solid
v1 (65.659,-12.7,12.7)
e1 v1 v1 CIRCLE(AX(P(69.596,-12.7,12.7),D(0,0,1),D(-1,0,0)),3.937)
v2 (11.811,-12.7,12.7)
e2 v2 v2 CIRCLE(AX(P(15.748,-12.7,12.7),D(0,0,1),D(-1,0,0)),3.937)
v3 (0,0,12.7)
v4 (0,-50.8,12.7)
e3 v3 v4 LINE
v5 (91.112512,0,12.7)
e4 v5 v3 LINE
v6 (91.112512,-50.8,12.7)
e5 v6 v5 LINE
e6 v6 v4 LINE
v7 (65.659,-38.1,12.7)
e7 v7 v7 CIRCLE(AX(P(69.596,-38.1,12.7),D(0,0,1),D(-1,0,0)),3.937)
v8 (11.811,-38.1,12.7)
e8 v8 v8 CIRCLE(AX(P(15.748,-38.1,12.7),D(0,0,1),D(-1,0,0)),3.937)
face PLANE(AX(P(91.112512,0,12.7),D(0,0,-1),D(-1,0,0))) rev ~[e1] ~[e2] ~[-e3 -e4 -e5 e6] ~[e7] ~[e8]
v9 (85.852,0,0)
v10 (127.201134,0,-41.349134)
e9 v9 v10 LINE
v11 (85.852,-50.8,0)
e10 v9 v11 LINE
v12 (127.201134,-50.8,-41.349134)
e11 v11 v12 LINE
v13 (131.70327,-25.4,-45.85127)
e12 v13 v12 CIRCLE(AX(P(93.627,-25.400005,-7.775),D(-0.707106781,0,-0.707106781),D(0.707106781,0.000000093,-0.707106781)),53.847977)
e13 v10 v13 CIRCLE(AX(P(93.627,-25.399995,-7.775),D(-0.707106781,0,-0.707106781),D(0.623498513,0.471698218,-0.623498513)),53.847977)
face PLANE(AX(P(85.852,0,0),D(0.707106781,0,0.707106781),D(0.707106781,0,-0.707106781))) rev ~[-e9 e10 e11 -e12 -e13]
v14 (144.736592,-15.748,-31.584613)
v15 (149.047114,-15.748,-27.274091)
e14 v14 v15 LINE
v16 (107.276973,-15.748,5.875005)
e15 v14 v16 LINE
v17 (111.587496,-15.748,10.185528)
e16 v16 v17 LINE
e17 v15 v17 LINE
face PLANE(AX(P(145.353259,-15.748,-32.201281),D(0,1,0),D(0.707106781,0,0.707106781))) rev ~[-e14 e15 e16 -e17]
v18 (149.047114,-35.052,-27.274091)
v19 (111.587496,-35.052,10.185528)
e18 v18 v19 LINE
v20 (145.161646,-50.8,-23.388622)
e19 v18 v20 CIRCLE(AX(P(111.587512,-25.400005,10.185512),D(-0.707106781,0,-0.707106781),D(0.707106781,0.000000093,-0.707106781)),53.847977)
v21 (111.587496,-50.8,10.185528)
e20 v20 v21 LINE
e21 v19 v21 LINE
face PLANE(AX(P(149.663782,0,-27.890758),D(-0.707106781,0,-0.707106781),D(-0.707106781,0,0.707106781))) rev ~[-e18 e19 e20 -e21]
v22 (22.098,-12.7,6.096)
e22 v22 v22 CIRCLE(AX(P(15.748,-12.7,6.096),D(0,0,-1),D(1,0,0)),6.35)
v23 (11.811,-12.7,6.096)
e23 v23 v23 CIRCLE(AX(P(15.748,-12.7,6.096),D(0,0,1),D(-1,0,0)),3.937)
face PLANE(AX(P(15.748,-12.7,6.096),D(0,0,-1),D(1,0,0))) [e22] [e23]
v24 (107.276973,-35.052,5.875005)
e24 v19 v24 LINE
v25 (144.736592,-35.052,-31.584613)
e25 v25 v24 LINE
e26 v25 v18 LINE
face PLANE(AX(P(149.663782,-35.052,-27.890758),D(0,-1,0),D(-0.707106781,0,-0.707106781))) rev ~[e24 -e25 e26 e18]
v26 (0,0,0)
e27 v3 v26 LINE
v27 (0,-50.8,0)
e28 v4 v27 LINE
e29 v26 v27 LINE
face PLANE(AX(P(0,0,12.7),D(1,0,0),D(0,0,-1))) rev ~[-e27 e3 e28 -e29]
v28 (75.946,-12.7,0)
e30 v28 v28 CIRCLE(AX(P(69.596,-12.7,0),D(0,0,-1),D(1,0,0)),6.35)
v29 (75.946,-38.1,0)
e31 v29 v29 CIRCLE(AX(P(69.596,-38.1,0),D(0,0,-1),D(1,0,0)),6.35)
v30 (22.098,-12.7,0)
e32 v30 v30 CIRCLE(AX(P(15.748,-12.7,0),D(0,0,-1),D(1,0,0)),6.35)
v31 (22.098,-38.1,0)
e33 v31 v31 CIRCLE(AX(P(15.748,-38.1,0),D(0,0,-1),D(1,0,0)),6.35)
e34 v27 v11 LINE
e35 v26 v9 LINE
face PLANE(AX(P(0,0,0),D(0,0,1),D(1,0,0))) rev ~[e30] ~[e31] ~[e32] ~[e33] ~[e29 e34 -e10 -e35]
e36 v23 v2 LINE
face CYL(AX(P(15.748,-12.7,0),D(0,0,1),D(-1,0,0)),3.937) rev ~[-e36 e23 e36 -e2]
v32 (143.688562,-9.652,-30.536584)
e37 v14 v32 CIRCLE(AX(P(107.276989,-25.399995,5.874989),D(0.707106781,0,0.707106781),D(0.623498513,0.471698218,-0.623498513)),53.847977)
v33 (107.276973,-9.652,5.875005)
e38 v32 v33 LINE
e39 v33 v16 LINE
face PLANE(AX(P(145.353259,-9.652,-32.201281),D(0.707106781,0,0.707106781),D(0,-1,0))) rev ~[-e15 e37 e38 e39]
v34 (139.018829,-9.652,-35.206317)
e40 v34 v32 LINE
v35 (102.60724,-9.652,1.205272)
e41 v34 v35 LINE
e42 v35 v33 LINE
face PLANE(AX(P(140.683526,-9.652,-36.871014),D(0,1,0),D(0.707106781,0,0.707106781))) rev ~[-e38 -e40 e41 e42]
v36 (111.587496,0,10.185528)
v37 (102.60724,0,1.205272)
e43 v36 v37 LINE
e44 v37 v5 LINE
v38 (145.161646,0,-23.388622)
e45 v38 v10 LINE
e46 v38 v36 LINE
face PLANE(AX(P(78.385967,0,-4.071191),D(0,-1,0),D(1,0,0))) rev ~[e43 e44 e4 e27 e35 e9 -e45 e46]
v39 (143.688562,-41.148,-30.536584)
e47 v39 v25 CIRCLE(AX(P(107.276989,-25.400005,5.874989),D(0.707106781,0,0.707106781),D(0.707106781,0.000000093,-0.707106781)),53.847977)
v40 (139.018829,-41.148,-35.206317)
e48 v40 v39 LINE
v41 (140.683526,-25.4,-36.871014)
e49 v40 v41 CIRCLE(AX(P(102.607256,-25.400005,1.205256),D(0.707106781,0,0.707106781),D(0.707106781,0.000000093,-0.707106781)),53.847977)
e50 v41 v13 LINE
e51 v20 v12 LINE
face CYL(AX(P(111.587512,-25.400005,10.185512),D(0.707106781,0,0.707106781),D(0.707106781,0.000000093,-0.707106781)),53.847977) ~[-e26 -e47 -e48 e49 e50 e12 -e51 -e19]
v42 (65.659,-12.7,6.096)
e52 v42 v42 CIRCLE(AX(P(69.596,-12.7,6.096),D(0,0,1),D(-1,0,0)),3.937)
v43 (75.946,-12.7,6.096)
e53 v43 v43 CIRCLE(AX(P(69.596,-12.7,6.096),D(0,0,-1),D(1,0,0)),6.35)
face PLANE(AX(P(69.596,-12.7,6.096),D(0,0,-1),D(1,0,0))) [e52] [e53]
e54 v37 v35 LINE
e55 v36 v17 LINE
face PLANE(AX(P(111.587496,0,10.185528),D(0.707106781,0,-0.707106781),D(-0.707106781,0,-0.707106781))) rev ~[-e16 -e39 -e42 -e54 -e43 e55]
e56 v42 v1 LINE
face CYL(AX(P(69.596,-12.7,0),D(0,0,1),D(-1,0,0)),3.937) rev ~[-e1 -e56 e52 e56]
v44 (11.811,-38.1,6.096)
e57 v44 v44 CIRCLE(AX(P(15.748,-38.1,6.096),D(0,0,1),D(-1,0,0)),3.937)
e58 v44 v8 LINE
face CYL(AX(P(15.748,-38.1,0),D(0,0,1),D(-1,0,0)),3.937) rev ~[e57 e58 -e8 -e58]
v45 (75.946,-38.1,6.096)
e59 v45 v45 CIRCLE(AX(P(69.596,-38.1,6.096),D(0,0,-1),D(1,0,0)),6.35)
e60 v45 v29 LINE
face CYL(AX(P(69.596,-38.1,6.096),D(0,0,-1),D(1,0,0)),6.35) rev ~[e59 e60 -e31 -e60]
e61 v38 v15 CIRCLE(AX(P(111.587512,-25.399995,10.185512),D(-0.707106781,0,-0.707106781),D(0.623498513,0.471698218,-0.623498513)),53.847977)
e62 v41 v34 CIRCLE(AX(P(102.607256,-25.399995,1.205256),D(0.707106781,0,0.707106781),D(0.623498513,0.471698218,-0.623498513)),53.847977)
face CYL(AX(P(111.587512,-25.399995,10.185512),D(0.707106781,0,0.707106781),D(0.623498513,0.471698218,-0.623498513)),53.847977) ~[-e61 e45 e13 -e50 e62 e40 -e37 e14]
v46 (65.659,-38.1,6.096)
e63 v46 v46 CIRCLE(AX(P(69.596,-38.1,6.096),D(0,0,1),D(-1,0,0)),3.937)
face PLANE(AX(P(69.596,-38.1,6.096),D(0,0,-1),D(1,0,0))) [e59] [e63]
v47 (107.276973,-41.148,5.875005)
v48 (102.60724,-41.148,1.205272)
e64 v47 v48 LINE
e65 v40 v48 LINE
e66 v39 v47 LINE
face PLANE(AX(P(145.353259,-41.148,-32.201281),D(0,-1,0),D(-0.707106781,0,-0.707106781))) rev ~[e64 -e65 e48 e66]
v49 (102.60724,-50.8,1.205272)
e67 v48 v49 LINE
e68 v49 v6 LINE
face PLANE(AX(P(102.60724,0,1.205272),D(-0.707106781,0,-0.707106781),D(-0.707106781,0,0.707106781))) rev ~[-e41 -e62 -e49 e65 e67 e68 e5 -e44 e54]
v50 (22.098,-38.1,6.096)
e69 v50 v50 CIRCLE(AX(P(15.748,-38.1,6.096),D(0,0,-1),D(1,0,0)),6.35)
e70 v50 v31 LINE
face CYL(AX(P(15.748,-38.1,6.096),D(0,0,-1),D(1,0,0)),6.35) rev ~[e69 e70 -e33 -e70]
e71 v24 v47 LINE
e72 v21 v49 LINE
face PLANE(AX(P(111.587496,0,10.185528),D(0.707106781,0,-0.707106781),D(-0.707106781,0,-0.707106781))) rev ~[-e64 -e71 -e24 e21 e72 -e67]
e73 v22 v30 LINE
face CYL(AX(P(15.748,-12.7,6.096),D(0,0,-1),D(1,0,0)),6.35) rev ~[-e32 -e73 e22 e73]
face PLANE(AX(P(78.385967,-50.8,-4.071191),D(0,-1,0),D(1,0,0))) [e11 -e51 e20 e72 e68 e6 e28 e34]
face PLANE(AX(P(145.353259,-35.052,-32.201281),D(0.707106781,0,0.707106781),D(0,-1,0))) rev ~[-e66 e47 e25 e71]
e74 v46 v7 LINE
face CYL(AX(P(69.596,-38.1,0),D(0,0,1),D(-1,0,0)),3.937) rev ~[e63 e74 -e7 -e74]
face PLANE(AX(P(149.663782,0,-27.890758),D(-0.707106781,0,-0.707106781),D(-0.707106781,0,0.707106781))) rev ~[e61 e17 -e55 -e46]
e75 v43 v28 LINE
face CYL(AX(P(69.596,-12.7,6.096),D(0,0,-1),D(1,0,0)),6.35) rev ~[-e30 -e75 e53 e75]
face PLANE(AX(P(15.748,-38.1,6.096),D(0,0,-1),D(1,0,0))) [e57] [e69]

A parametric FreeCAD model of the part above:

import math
import FreeCAD as App
import Part
import Sketcher
Q = App.Units.Quantity


def add_polygon(sketch, points):
    """Adds a closed chain of lines whose ends are joined by coincident constraints."""
    first, n = sketch.GeometryCount, len(points)
    for a, b in zip(points, points[1:] + points[:1]):
        sketch.addGeometry(Part.LineSegment(App.Vector(*a, 0), App.Vector(*b, 0)), False)
    for i in range(n):
        sketch.addConstraint(Sketcher.Constraint("Coincident", first + i, 2, first + (i + 1) % n, 1))

doc = App.newDocument("Part")
body = doc.addObject("PartDesign::Body", "Body")

# Sketch on XZ plane
sketch1 = doc.addObject("Sketcher::SketchObject", "Sketch")
body.addObject(sketch1)
sketch1.AttachmentSupport = (doc.XZ_Plane, [""])
sketch1.MapMode = "FlatFace"
add_polygon(sketch1, [(0, 12.7), (0, 0), (85.852, 0), (131.70327, -45.85127), (149.663782, -27.890758), (111.587496, 10.185528), (102.60724, 1.205272), (91.112512, 12.7)])  # lines 0-7
sketch1.addConstraint(Sketcher.Constraint("Vertical", 0))
sketch1.addConstraint(Sketcher.Constraint("Horizontal", 1))
sketch1.addConstraint(Sketcher.Constraint("Horizontal", 7))
sketch1.addConstraint(Sketcher.Constraint("Coincident", 0, 2, -1, 1))
sketch1.addConstraint(Sketcher.Constraint("Perpendicular", 2, 3))
sketch1.addConstraint(Sketcher.Constraint("Perpendicular", 3, 4))
sketch1.addConstraint(Sketcher.Constraint("Perpendicular", 4, 5))
sketch1.addConstraint(Sketcher.Constraint("Perpendicular", 5, 6))
sketch1.addConstraint(Sketcher.Constraint("Distance", 3, Q("1 in")))
sketch1.addConstraint(Sketcher.Constraint("DistanceY", 0, 2, 0, 1, Q("0.5 in")))
sketch1.addConstraint(Sketcher.Constraint("Angle", 2, Q("-45 deg")))
sketch1.addConstraint(Sketcher.Constraint("Distance", 5, Q("0.5 in")))
sketch1.addConstraint(Sketcher.Constraint("DistanceX", 1, 1, 1, 2, Q("3.38 in")))
sketch1.addConstraint(Sketcher.Constraint("Distance", 4, Q("2.12 in")))
sketch1.addConstraint(Sketcher.Constraint("Distance", 6, Q("0.64 in")))
pad1 = doc.addObject("PartDesign::Pad", "Pad")
body.addObject(pad1)
pad1.Profile = sketch1
pad1.Length = Q("2 in")

# Sketch on an angled plane
sketch2 = doc.addObject("Sketcher::SketchObject", "Sketch001")
body.addObject(sketch2)
sketch2.Placement = App.Placement(App.Vector(88.77727, 0, -88.77727), App.Rotation(App.Vector(0, 1, 0), App.Vector(0.707106781, 0, 0.707106781), App.Vector(0.707106781, 0, -0.707106781), "ZXY"))
add_polygon(sketch2, [(-15.748, 86.106531), (-35.052, 86.106531), (-35.052, 80.010531), (-41.148, 80.010531), (-41.148, 73.406531), (-9.652, 73.406531), (-9.652, 80.010531), (-15.748, 80.010531)])  # lines 0-7
sketch2.addConstraint(Sketcher.Constraint("Horizontal", 0))
sketch2.addConstraint(Sketcher.Constraint("Vertical", 1))
sketch2.addConstraint(Sketcher.Constraint("Horizontal", 2))
sketch2.addConstraint(Sketcher.Constraint("Vertical", 3))
sketch2.addConstraint(Sketcher.Constraint("Horizontal", 4))
sketch2.addConstraint(Sketcher.Constraint("Vertical", 5))
sketch2.addConstraint(Sketcher.Constraint("Horizontal", 6))
sketch2.addConstraint(Sketcher.Constraint("Vertical", 7))
sketch2.addConstraint(Sketcher.Constraint("Horizontal", 2, 2, 5, 2))
sketch2.addConstraint(Sketcher.Constraint("Equal", 2, 6))
sketch2.addConstraint(Sketcher.Constraint("Equal", 6, 1))
sketch2.addConstraint(Sketcher.Constraint("DistanceX", 1, 2, 4, 2, Q("1 in")))
sketch2.addConstraint(Sketcher.Constraint("DistanceX", 0, 2, 0, 1, Q("0.76 in")))
sketch2.addConstraint(Sketcher.Constraint("DistanceY", 3, 2, 3, 1, Q("0.26 in")))
sketch2.addConstraint(Sketcher.Constraint("DistanceX", 0, 2, -1, 1, Q("1.38 in")))
sketch2.addConstraint(Sketcher.Constraint("DistanceY", -1, 1, 0, 2, Q("86.106531 mm")))
pocket1 = doc.addObject("PartDesign::Pocket", "Pocket")
body.addObject(pocket1)
pocket1.Profile = sketch2
pocket1.Type = "ThroughAll"

# Sketch on an angled plane
sketch3 = doc.addObject("Sketcher::SketchObject", "Sketch002")
body.addObject(sketch3)
sketch3.Placement = App.Placement(App.Vector(60.886512, 0, 60.886512), App.Rotation(App.Vector(0.707106781, 0, -0.707106781), App.Vector(0, 0.999999999, 0), App.Vector(0.707106781, 0, 0.707106781), "ZXY"))
sketch3.addGeometry(Part.LineSegment(App.Vector(125.550019, 0, 0), App.Vector(119.183037, 0, 0)), False)
sketch3.addGeometry(Part.ArcOfCircle(Part.Circle(App.Vector(71.702042, -25.399995, 0), App.Vector(0, 0, 1), 53.847977), math.radians(-0.000005), math.radians(28.144588)), False)
sketch3.addGeometry(Part.LineSegment(App.Vector(125.550019, -25.4, 0), App.Vector(125.550019, 0, 0)), False)
sketch3.addGeometry(Part.LineSegment(App.Vector(125.550019, -50.8, 0), App.Vector(125.550019, -25.4, 0)), False)
sketch3.addGeometry(Part.ArcOfCircle(Part.Circle(App.Vector(71.702042, -25.400005, 0), App.Vector(0, 0, 1), 53.847977), math.radians(-28.144588), math.radians(0.000005)), False)
sketch3.addGeometry(Part.LineSegment(App.Vector(119.183037, -50.8, 0), App.Vector(125.550019, -50.8, 0)), False)
sketch3.addConstraint(Sketcher.Constraint("Coincident", 0, 2, 1, 2))
sketch3.addConstraint(Sketcher.Constraint("Tangent", 1, 1, 2, 1))
sketch3.addConstraint(Sketcher.Constraint("Coincident", 2, 2, 0, 1))
sketch3.addConstraint(Sketcher.Constraint("Tangent", 3, 2, 4, 2))
sketch3.addConstraint(Sketcher.Constraint("Coincident", 4, 1, 5, 1))
sketch3.addConstraint(Sketcher.Constraint("Coincident", 5, 2, 3, 1))
sketch3.addConstraint(Sketcher.Constraint("Horizontal", 0))
sketch3.addConstraint(Sketcher.Constraint("Vertical", 2))
sketch3.addConstraint(Sketcher.Constraint("Vertical", 3))
sketch3.addConstraint(Sketcher.Constraint("Horizontal", 5))
sketch3.addConstraint(Sketcher.Constraint("Coincident", 4, 3, 1, 3))
sketch3.addConstraint(Sketcher.Constraint("Equal", 1, 4))
sketch3.addConstraint(Sketcher.Constraint("PointOnObject", 0, 2, -1))
sketch3.addConstraint(Sketcher.Constraint("Vertical", 0, 2, 4, 1))
sketch3.addConstraint(Sketcher.Constraint("DistanceY", 2, 1, 2, 2, Q("1 in")))
sketch3.addConstraint(Sketcher.Constraint("Radius", 1, Q("53.847977 mm")))
sketch3.addConstraint(Sketcher.Constraint("DistanceX", -1, 1, 1, 3, Q("71.702042 mm")))
pocket2 = doc.addObject("PartDesign::Pocket", "Pocket001")
body.addObject(pocket2)
pocket2.Profile = sketch3
pocket2.Length = Q("1 in")

# Sketch on XY plane
sketch4 = doc.addObject("Sketcher::SketchObject", "Sketch003")
body.addObject(sketch4)
sketch4.AttachmentSupport = (doc.XY_Plane, [""])
sketch4.MapMode = "FlatFace"
sketch4.addGeometry(Part.Circle(App.Vector(15.748, -38.1, 0), App.Vector(0, 0, 1), 3.937), False)
sketch4.addGeometry(Part.Circle(App.Vector(15.748, -12.7, 0), App.Vector(0, 0, 1), 3.937), False)
sketch4.addGeometry(Part.Circle(App.Vector(69.596, -12.7, 0), App.Vector(0, 0, 1), 3.937), False)
sketch4.addGeometry(Part.Circle(App.Vector(69.596, -38.1, 0), App.Vector(0, 0, 1), 3.937), False)
sketch4.addConstraint(Sketcher.Constraint("Equal", 0, 1))
sketch4.addConstraint(Sketcher.Constraint("Equal", 1, 2))
sketch4.addConstraint(Sketcher.Constraint("Equal", 2, 3))
sketch4.addConstraint(Sketcher.Constraint("Horizontal", 1, 3, 2, 3))
sketch4.addConstraint(Sketcher.Constraint("Horizontal", 0, 3, 3, 3))
sketch4.addConstraint(Sketcher.Constraint("Vertical", 0, 3, 1, 3))
sketch4.addConstraint(Sketcher.Constraint("Vertical", 2, 3, 3, 3))
sketch4.addConstraint(Sketcher.Constraint("Diameter", 0, Q("0.31 in")))
sketch4.addConstraint(Sketcher.Constraint("DistanceY", 0, 3, 1, 3, Q("1 in")))
sketch4.addConstraint(Sketcher.Constraint("DistanceY", 0, 3, -1, 1, Q("1.5 in")))
sketch4.addConstraint(Sketcher.Constraint("DistanceX", -1, 1, 0, 3, Q("0.62 in")))
sketch4.addConstraint(Sketcher.Constraint("DistanceX", -1, 1, 2, 3, Q("2.74 in")))
doc.recompute()
hole = doc.addObject("PartDesign::Hole", "Hole")
body.addObject(hole)
hole.Profile = sketch4
hole.ThreadType = "None"
hole.Diameter = Q("0.31 in")
hole.DepthType = "Dimension"
hole.Depth = Q("2 in")
hole.DrillPoint = "Flat"
hole.HoleCutType = "Counterbore"
hole.HoleCutDiameter = Q("0.5 in")
hole.HoleCutDepth = Q("0.24 in")
hole.Reversed = True

doc.recompute()
